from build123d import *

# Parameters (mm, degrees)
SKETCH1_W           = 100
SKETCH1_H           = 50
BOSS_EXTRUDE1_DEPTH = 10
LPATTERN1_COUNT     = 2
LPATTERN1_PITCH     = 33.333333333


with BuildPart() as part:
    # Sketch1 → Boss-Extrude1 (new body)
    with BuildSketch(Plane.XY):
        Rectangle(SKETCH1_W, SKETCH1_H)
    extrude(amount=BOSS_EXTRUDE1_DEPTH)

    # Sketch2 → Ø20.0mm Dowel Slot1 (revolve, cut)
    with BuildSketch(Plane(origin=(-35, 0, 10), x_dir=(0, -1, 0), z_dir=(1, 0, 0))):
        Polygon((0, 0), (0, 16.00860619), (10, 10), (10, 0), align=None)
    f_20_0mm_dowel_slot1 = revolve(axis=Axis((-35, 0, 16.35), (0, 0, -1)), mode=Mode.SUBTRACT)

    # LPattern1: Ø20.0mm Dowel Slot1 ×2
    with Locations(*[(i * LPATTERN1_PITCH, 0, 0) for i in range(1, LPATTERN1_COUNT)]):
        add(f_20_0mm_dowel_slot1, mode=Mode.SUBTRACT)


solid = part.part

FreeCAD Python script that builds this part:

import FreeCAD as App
import Part
import Sketcher

V = App.Vector
Q = App.Units.Quantity


def add_polygon(sketch, points):
    """Adds a closed chain of lines whose ends are joined by coincident constraints."""
    first, n = sketch.GeometryCount, len(points)
    for a, b in zip(points, points[1:] + points[:1]):
        sketch.addGeometry(Part.LineSegment(App.Vector(*a, 0), App.Vector(*b, 0)), False)
    for i in range(n):
        sketch.addConstraint(Sketcher.Constraint("Coincident", first + i, 2, first + (i + 1) % n, 1))

doc = App.newDocument("Part")
body = doc.addObject("PartDesign::Body", "Body")

# Sketch on XY plane
sketch1 = doc.addObject("Sketcher::SketchObject", "Sketch")
body.addObject(sketch1)
sketch1.AttachmentSupport = (doc.XY_Plane, [""])
sketch1.MapMode = "FlatFace"
add_polygon(sketch1, [(-50, 25), (-50, -25), (50, -25), (50, 25)])  # lines 0-3
sketch1.addConstraint(Sketcher.Constraint("Vertical", 0))
sketch1.addConstraint(Sketcher.Constraint("Horizontal", 1))
sketch1.addConstraint(Sketcher.Constraint("Vertical", 2))
sketch1.addConstraint(Sketcher.Constraint("Horizontal", 3))
sketch1.addConstraint(Sketcher.Constraint("Symmetric", 0, 2, 2, 2, -1, 1))
sketch1.addConstraint(Sketcher.Constraint("DistanceX", 1, 1, 1, 2, Q("100 mm")))
sketch1.addConstraint(Sketcher.Constraint("DistanceY", 0, 2, 0, 1, Q("50 mm")))
pad1 = doc.addObject("PartDesign::Pad", "Pad")
body.addObject(pad1)
pad1.Profile = sketch1
pad1.Length = 10

# Sketch on YZ plane
sketch2 = doc.addObject("Sketcher::SketchObject", "Sketch001")
body.addObject(sketch2)
sketch2.AttachmentSupport = (doc.YZ_Plane, [""])
sketch2.MapMode = "FlatFace"
sketch2.AttachmentOffset = App.Placement(V(0, 0, -35), App.Rotation())
add_polygon(sketch2, [(0, -6), (0, 10), (-10, 10), (-10, 0)])  # lines 0-3
sketch2.addConstraint(Sketcher.Constraint("Vertical", 0))
sketch2.addConstraint(Sketcher.Constraint("Horizontal", 1))
sketch2.addConstraint(Sketcher.Constraint("Vertical", 2))
sketch2.addConstraint(Sketcher.Constraint("PointOnObject", 0, 2, -2))
sketch2.addConstraint(Sketcher.Constraint("PointOnObject", 2, 2, -1))
sketch2.addConstraint(Sketcher.Constraint("Equal", 1, 2))
sketch2.addConstraint(Sketcher.Constraint("DistanceX", 1, 2, 1, 1, Q("10 mm")))
sketch2.addConstraint(Sketcher.Constraint("Angle", 3, Q("-31 deg")))
groove = doc.addObject("PartDesign::Groove", "Groove")
body.addObject(groove)
groove.Profile = sketch2
groove.ReferenceAxis = (sketch2, ["V_Axis"])
groove.Angle = 360
doc.recompute()

linearpattern = doc.addObject("PartDesign::LinearPattern", "LinearPattern")
body.addObject(linearpattern)
linearpattern.Originals = [groove]
linearpattern.Direction = (doc.X_Axis, [""])
linearpattern.Mode = "offset"
linearpattern.Offset = 33.333333
linearpattern.Occurrences = 2
body.Tip = linearpattern

doc.recompute()
